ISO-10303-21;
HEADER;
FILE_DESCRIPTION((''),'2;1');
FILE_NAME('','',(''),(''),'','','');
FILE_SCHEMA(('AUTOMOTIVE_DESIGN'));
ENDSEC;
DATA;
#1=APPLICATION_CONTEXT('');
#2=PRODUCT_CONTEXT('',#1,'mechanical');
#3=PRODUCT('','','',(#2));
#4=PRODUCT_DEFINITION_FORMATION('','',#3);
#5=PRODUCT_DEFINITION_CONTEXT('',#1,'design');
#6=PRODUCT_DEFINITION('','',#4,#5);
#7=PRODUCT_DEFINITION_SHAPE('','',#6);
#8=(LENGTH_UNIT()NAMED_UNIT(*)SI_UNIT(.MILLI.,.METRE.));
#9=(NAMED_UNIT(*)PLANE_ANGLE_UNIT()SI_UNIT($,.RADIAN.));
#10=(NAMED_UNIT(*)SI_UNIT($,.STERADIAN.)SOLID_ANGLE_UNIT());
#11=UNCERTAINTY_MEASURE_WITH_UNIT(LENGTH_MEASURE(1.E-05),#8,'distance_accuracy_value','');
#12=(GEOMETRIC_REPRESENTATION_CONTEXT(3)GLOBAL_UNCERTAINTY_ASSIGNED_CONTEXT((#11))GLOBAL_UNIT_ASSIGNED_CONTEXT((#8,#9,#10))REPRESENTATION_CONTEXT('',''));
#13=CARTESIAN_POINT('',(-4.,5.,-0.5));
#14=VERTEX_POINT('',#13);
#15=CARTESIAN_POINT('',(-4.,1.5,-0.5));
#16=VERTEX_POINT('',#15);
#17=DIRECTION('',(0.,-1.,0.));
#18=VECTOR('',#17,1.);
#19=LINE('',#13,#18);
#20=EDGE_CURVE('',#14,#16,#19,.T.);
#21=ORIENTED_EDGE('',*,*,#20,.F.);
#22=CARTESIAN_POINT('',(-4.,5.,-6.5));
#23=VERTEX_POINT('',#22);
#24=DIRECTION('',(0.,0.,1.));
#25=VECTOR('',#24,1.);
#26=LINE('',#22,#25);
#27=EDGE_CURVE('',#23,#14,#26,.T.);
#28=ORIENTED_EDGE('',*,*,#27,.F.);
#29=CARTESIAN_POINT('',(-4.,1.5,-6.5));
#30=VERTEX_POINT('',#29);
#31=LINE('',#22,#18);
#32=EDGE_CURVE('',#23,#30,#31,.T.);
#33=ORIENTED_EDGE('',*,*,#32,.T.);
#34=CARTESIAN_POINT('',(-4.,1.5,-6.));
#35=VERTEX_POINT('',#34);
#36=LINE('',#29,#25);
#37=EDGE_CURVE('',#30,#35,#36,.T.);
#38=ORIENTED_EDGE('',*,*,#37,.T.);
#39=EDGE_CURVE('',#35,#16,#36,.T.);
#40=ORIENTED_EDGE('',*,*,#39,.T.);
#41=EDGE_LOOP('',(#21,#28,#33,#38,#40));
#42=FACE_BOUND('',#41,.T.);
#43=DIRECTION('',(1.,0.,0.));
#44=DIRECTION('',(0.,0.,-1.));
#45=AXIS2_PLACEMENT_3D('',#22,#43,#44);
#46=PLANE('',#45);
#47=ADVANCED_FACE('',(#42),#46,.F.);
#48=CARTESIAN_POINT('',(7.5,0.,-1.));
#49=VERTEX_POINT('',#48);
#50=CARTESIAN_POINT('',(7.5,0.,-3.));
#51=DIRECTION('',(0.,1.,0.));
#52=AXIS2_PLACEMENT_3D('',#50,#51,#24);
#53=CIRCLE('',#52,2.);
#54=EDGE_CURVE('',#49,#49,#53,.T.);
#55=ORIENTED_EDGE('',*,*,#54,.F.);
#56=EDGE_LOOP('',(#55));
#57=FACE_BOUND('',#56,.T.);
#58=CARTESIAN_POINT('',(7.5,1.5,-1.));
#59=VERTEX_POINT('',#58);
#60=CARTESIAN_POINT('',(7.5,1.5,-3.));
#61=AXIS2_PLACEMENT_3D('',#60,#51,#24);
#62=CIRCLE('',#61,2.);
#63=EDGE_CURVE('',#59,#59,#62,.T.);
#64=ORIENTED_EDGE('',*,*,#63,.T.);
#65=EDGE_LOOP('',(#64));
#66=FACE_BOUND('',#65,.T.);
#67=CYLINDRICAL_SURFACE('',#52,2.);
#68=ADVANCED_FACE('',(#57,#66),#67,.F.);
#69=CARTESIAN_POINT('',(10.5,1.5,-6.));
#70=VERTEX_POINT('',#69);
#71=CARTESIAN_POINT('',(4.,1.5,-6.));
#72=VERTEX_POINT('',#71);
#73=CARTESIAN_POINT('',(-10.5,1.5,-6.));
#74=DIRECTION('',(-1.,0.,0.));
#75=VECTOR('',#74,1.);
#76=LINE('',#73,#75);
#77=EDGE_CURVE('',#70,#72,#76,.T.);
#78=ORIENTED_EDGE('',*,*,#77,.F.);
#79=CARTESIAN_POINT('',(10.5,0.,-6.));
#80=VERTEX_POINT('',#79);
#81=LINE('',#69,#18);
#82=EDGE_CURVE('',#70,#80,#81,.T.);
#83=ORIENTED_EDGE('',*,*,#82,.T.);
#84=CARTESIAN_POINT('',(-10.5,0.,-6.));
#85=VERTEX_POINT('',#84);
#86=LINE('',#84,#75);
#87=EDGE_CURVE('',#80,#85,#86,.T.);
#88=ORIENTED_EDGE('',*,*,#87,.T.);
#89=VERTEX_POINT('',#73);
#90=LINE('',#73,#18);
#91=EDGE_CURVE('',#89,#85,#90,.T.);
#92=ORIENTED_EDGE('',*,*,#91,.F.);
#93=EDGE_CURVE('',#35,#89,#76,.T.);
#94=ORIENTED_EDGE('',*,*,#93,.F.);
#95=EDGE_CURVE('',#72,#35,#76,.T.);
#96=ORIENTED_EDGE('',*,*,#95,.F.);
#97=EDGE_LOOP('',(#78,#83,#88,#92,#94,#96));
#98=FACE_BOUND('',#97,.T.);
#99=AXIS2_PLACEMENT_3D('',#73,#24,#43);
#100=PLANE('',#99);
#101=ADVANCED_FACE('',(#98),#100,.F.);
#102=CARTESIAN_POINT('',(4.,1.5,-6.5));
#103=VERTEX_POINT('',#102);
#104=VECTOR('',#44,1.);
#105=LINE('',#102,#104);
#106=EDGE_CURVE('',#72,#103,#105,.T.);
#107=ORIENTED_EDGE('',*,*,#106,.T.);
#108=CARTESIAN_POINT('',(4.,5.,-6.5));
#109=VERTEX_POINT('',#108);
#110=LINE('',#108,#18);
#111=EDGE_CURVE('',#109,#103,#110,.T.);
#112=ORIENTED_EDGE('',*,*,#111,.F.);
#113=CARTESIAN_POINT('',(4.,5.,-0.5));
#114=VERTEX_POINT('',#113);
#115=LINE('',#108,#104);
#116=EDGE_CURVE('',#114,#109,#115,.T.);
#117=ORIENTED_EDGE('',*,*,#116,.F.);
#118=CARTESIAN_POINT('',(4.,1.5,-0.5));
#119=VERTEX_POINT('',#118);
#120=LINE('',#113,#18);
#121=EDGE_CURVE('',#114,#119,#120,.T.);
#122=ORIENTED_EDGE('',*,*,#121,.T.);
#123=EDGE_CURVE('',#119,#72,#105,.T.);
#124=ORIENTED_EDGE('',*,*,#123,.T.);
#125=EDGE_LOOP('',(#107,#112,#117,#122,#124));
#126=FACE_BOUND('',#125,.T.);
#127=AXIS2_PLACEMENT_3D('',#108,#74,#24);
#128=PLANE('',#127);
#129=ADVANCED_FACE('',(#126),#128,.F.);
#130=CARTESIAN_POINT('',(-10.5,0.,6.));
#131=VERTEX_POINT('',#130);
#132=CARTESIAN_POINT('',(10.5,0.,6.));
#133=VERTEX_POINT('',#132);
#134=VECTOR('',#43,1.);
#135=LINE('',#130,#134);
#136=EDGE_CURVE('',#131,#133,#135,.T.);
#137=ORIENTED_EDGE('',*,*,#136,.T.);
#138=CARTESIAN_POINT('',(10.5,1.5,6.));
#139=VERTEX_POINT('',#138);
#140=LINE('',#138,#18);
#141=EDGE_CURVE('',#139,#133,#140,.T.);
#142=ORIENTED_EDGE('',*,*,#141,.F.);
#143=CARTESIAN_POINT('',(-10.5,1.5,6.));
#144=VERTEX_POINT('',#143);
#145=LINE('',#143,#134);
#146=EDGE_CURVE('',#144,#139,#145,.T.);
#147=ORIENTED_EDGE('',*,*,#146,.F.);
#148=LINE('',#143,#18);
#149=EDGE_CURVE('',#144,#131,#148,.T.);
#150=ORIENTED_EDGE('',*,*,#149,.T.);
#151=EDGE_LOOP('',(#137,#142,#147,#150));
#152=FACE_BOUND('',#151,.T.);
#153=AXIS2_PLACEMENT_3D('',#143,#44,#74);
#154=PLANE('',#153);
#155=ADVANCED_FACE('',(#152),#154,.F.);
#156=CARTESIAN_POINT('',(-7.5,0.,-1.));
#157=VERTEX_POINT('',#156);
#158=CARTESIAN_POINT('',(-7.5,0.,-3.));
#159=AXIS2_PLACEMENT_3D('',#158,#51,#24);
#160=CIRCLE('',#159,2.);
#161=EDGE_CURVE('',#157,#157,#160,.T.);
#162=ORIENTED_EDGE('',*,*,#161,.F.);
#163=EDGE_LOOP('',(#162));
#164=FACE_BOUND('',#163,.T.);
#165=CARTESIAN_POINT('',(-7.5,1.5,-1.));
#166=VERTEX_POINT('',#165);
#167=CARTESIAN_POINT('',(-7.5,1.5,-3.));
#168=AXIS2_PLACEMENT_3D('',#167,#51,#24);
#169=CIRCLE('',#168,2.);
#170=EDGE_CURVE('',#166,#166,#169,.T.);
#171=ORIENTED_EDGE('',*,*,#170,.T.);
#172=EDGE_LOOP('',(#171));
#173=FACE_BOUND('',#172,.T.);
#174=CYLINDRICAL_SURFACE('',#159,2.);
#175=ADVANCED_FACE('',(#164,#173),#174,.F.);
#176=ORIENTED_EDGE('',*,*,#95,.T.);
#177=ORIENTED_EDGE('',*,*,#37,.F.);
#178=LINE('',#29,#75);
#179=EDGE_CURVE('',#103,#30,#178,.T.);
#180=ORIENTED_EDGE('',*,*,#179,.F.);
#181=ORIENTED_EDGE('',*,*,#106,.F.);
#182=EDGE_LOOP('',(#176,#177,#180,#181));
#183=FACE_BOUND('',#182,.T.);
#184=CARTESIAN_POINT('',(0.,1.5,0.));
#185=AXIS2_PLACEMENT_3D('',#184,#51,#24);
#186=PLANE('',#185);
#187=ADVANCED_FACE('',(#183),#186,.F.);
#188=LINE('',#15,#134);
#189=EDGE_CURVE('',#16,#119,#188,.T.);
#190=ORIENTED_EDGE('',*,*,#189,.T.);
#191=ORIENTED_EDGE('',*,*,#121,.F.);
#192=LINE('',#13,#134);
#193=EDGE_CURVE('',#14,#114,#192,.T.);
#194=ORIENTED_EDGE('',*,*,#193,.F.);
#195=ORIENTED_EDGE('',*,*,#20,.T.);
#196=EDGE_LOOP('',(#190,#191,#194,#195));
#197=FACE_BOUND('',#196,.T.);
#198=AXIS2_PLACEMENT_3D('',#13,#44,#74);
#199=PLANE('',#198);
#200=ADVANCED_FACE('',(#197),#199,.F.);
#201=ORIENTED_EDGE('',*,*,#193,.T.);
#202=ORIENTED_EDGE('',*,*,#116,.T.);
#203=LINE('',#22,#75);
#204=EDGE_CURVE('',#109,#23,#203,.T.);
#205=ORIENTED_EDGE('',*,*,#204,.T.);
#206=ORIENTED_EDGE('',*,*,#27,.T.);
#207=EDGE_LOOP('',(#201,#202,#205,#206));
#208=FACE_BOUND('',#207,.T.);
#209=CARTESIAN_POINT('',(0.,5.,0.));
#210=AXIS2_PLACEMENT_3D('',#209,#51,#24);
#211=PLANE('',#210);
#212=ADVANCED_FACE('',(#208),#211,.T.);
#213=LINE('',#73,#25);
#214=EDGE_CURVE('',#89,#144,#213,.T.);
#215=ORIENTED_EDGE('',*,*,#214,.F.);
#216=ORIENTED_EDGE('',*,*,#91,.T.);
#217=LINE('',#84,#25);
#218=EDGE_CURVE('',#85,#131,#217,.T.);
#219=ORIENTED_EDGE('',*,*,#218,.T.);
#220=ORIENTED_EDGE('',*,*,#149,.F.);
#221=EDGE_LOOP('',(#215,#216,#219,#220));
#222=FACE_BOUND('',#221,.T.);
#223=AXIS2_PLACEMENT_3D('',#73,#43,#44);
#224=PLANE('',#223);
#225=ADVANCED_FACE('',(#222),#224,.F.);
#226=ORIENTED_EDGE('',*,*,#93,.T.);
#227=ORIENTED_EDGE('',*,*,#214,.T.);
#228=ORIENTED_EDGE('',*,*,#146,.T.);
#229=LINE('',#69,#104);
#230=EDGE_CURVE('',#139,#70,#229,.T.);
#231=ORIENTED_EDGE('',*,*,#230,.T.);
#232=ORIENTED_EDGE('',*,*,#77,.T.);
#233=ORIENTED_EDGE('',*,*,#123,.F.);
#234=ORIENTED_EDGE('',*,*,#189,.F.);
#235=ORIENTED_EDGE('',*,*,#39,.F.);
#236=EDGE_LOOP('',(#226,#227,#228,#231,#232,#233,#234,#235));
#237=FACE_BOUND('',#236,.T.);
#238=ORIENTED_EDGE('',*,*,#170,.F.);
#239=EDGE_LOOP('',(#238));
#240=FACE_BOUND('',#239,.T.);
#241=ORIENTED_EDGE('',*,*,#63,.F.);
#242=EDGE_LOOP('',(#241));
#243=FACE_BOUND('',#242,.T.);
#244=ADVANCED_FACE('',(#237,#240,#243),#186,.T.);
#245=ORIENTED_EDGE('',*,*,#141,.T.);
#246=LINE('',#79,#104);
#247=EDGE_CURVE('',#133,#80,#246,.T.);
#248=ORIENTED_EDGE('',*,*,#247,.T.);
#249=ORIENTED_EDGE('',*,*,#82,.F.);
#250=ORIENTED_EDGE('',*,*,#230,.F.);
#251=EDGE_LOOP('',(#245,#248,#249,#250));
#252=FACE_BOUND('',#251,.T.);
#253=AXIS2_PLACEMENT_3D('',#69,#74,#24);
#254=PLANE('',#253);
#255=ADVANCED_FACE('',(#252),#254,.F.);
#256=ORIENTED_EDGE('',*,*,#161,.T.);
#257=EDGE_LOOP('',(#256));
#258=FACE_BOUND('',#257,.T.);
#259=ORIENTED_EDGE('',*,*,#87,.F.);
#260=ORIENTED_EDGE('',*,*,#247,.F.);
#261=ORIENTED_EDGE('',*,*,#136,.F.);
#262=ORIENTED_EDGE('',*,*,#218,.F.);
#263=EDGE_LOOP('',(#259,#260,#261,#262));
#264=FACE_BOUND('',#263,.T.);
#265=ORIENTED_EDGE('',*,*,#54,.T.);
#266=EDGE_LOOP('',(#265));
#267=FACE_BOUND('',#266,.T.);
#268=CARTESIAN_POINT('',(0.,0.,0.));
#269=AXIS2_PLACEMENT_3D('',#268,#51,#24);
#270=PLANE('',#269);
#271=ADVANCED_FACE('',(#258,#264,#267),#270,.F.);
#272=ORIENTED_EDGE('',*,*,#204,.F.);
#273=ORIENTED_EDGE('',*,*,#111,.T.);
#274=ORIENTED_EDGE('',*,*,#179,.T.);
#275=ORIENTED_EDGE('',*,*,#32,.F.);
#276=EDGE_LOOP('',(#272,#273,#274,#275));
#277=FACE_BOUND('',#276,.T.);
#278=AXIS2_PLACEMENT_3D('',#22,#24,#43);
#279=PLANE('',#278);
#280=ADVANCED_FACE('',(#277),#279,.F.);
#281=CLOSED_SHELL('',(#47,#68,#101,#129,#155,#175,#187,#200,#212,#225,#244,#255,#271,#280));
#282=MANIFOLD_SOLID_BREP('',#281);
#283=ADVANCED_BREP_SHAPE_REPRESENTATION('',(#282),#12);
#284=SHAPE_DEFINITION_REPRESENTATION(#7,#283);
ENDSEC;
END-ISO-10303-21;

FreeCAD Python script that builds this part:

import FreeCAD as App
import Part
import Sketcher

V = App.Vector
Q = App.Units.Quantity


def add_polygon(sketch, points):
    """Adds a closed chain of lines whose ends are joined by coincident constraints."""
    first, n = sketch.GeometryCount, len(points)
    for a, b in zip(points, points[1:] + points[:1]):
        sketch.addGeometry(Part.LineSegment(App.Vector(*a, 0), App.Vector(*b, 0)), False)
    for i in range(n):
        sketch.addConstraint(Sketcher.Constraint("Coincident", first + i, 2, first + (i + 1) % n, 1))

doc = App.newDocument("Part")
params = doc.addObject("Spreadsheet::Sheet", "Params")
for row, (alias, value) in enumerate([
    ("sketch1_width", "21 mm"),
    ("sketch1_height", "12 mm"),
    ("pad1_length", "1.5 mm"),
    ("sketch2_diameter", "4 mm"),
    ("pocket1_length", "1.5 mm"),
    ("sketch3_width", "8 mm"),
    ("sketch3_height", "6 mm"),
    ("pad2_length", "3.5 mm"),
], start=1):
    params.set(f"A{row}", alias)
    params.set(f"B{row}", "=" + value)
    params.setAlias(f"B{row}", alias)

body = doc.addObject("PartDesign::Body", "Body")

# Sketch on XZ plane
sketch1 = body.newObject("Sketcher::SketchObject", "Sketch")
sketch1.AttachmentSupport = (doc.getObject("XZ_Plane"), [""])
sketch1.MapMode = "FlatFace"
add_polygon(sketch1, [(-10.5, -6), (-10.5, 6), (10.5, 6), (10.5, -6)])  # lines 0-3
sketch1.addConstraint([
    Sketcher.Constraint("Vertical", 0),
    Sketcher.Constraint("Horizontal", 1),
    Sketcher.Constraint("Vertical", 2),
    Sketcher.Constraint("Horizontal", 3),
    Sketcher.Constraint("Symmetric", 0, 2, 2, 2, -1, 1),
    Sketcher.Constraint("DistanceX", 1, 1, 1, 2, Q("21 mm")),
    Sketcher.Constraint("DistanceY", 0, 1, 0, 2, Q("12 mm")),
])
sketch1.setExpression("Constraints[9]", "Params.sketch1_width")
sketch1.setExpression("Constraints[10]", "Params.sketch1_height")
pad1 = body.newObject("PartDesign::Pad", "Pad")
pad1.Profile = sketch1
pad1.setExpression("Length", "Params.pad1_length")
pad1.Reversed = True

# Sketch on XZ plane
sketch2 = body.newObject("Sketcher::SketchObject", "Sketch001")
sketch2.AttachmentSupport = (doc.getObject("XZ_Plane"), [""])
sketch2.MapMode = "FlatFace"
sketch2.AttachmentOffset = App.Placement(V(0, 0, -1.5), App.Rotation())
sketch2.addGeometry([
    Part.Circle(V(-7.5, -3, 0), V(0, 0, 1), 2),
    Part.Circle(V(7.5, -3, 0), V(0, 0, 1), 2),
], False)
sketch2.addConstraint([
    Sketcher.Constraint("Equal", 0, 1),
    Sketcher.Constraint("Symmetric", 0, 3, 1, 3, -2),
    Sketcher.Constraint("Diameter", 0, Q("4 mm")),
    Sketcher.Constraint("DistanceY", 0, 3, -1, 1, Q("3 mm")),
    Sketcher.Constraint("DistanceX", 0, 3, 1, 3, Q("15 mm")),
])
sketch2.setExpression("Constraints[2]", "Params.sketch2_diameter")
pocket1 = body.newObject("PartDesign::Pocket", "Pocket")
pocket1.Profile = sketch2
pocket1.setExpression("Length", "Params.pocket1_length")
pocket1.Reversed = True

# Sketch on XZ plane
sketch3 = body.newObject("Sketcher::SketchObject", "Sketch002")
sketch3.AttachmentSupport = (doc.getObject("XZ_Plane"), [""])
sketch3.MapMode = "FlatFace"
sketch3.AttachmentOffset = App.Placement(V(0, 0, -1.5), App.Rotation())
add_polygon(sketch3, [(-4, -6.5), (-4, -0.5), (4, -0.5), (4, -6.5)])  # lines 0-3
sketch3.addConstraint([
    Sketcher.Constraint("Vertical", 0),
    Sketcher.Constraint("Horizontal", 1),
    Sketcher.Constraint("Vertical", 2),
    Sketcher.Constraint("Horizontal", 3),
    Sketcher.Constraint("DistanceX", 1, 1, 1, 2, Q("8 mm")),
    Sketcher.Constraint("DistanceY", 0, 1, 0, 2, Q("6 mm")),
    Sketcher.Constraint("DistanceX", 0, 2, -1, 1, Q("4 mm")),
    Sketcher.Constraint("DistanceY", 0, 2, -1, 1, Q("0.5 mm")),
])
sketch3.setExpression("Constraints[8]", "Params.sketch3_width")
sketch3.setExpression("Constraints[9]", "Params.sketch3_height")
pad2 = body.newObject("PartDesign::Pad", "Pad001")
pad2.Profile = sketch3
pad2.setExpression("Length", "Params.pad2_length")
pad2.Reversed = True

doc.recompute()
